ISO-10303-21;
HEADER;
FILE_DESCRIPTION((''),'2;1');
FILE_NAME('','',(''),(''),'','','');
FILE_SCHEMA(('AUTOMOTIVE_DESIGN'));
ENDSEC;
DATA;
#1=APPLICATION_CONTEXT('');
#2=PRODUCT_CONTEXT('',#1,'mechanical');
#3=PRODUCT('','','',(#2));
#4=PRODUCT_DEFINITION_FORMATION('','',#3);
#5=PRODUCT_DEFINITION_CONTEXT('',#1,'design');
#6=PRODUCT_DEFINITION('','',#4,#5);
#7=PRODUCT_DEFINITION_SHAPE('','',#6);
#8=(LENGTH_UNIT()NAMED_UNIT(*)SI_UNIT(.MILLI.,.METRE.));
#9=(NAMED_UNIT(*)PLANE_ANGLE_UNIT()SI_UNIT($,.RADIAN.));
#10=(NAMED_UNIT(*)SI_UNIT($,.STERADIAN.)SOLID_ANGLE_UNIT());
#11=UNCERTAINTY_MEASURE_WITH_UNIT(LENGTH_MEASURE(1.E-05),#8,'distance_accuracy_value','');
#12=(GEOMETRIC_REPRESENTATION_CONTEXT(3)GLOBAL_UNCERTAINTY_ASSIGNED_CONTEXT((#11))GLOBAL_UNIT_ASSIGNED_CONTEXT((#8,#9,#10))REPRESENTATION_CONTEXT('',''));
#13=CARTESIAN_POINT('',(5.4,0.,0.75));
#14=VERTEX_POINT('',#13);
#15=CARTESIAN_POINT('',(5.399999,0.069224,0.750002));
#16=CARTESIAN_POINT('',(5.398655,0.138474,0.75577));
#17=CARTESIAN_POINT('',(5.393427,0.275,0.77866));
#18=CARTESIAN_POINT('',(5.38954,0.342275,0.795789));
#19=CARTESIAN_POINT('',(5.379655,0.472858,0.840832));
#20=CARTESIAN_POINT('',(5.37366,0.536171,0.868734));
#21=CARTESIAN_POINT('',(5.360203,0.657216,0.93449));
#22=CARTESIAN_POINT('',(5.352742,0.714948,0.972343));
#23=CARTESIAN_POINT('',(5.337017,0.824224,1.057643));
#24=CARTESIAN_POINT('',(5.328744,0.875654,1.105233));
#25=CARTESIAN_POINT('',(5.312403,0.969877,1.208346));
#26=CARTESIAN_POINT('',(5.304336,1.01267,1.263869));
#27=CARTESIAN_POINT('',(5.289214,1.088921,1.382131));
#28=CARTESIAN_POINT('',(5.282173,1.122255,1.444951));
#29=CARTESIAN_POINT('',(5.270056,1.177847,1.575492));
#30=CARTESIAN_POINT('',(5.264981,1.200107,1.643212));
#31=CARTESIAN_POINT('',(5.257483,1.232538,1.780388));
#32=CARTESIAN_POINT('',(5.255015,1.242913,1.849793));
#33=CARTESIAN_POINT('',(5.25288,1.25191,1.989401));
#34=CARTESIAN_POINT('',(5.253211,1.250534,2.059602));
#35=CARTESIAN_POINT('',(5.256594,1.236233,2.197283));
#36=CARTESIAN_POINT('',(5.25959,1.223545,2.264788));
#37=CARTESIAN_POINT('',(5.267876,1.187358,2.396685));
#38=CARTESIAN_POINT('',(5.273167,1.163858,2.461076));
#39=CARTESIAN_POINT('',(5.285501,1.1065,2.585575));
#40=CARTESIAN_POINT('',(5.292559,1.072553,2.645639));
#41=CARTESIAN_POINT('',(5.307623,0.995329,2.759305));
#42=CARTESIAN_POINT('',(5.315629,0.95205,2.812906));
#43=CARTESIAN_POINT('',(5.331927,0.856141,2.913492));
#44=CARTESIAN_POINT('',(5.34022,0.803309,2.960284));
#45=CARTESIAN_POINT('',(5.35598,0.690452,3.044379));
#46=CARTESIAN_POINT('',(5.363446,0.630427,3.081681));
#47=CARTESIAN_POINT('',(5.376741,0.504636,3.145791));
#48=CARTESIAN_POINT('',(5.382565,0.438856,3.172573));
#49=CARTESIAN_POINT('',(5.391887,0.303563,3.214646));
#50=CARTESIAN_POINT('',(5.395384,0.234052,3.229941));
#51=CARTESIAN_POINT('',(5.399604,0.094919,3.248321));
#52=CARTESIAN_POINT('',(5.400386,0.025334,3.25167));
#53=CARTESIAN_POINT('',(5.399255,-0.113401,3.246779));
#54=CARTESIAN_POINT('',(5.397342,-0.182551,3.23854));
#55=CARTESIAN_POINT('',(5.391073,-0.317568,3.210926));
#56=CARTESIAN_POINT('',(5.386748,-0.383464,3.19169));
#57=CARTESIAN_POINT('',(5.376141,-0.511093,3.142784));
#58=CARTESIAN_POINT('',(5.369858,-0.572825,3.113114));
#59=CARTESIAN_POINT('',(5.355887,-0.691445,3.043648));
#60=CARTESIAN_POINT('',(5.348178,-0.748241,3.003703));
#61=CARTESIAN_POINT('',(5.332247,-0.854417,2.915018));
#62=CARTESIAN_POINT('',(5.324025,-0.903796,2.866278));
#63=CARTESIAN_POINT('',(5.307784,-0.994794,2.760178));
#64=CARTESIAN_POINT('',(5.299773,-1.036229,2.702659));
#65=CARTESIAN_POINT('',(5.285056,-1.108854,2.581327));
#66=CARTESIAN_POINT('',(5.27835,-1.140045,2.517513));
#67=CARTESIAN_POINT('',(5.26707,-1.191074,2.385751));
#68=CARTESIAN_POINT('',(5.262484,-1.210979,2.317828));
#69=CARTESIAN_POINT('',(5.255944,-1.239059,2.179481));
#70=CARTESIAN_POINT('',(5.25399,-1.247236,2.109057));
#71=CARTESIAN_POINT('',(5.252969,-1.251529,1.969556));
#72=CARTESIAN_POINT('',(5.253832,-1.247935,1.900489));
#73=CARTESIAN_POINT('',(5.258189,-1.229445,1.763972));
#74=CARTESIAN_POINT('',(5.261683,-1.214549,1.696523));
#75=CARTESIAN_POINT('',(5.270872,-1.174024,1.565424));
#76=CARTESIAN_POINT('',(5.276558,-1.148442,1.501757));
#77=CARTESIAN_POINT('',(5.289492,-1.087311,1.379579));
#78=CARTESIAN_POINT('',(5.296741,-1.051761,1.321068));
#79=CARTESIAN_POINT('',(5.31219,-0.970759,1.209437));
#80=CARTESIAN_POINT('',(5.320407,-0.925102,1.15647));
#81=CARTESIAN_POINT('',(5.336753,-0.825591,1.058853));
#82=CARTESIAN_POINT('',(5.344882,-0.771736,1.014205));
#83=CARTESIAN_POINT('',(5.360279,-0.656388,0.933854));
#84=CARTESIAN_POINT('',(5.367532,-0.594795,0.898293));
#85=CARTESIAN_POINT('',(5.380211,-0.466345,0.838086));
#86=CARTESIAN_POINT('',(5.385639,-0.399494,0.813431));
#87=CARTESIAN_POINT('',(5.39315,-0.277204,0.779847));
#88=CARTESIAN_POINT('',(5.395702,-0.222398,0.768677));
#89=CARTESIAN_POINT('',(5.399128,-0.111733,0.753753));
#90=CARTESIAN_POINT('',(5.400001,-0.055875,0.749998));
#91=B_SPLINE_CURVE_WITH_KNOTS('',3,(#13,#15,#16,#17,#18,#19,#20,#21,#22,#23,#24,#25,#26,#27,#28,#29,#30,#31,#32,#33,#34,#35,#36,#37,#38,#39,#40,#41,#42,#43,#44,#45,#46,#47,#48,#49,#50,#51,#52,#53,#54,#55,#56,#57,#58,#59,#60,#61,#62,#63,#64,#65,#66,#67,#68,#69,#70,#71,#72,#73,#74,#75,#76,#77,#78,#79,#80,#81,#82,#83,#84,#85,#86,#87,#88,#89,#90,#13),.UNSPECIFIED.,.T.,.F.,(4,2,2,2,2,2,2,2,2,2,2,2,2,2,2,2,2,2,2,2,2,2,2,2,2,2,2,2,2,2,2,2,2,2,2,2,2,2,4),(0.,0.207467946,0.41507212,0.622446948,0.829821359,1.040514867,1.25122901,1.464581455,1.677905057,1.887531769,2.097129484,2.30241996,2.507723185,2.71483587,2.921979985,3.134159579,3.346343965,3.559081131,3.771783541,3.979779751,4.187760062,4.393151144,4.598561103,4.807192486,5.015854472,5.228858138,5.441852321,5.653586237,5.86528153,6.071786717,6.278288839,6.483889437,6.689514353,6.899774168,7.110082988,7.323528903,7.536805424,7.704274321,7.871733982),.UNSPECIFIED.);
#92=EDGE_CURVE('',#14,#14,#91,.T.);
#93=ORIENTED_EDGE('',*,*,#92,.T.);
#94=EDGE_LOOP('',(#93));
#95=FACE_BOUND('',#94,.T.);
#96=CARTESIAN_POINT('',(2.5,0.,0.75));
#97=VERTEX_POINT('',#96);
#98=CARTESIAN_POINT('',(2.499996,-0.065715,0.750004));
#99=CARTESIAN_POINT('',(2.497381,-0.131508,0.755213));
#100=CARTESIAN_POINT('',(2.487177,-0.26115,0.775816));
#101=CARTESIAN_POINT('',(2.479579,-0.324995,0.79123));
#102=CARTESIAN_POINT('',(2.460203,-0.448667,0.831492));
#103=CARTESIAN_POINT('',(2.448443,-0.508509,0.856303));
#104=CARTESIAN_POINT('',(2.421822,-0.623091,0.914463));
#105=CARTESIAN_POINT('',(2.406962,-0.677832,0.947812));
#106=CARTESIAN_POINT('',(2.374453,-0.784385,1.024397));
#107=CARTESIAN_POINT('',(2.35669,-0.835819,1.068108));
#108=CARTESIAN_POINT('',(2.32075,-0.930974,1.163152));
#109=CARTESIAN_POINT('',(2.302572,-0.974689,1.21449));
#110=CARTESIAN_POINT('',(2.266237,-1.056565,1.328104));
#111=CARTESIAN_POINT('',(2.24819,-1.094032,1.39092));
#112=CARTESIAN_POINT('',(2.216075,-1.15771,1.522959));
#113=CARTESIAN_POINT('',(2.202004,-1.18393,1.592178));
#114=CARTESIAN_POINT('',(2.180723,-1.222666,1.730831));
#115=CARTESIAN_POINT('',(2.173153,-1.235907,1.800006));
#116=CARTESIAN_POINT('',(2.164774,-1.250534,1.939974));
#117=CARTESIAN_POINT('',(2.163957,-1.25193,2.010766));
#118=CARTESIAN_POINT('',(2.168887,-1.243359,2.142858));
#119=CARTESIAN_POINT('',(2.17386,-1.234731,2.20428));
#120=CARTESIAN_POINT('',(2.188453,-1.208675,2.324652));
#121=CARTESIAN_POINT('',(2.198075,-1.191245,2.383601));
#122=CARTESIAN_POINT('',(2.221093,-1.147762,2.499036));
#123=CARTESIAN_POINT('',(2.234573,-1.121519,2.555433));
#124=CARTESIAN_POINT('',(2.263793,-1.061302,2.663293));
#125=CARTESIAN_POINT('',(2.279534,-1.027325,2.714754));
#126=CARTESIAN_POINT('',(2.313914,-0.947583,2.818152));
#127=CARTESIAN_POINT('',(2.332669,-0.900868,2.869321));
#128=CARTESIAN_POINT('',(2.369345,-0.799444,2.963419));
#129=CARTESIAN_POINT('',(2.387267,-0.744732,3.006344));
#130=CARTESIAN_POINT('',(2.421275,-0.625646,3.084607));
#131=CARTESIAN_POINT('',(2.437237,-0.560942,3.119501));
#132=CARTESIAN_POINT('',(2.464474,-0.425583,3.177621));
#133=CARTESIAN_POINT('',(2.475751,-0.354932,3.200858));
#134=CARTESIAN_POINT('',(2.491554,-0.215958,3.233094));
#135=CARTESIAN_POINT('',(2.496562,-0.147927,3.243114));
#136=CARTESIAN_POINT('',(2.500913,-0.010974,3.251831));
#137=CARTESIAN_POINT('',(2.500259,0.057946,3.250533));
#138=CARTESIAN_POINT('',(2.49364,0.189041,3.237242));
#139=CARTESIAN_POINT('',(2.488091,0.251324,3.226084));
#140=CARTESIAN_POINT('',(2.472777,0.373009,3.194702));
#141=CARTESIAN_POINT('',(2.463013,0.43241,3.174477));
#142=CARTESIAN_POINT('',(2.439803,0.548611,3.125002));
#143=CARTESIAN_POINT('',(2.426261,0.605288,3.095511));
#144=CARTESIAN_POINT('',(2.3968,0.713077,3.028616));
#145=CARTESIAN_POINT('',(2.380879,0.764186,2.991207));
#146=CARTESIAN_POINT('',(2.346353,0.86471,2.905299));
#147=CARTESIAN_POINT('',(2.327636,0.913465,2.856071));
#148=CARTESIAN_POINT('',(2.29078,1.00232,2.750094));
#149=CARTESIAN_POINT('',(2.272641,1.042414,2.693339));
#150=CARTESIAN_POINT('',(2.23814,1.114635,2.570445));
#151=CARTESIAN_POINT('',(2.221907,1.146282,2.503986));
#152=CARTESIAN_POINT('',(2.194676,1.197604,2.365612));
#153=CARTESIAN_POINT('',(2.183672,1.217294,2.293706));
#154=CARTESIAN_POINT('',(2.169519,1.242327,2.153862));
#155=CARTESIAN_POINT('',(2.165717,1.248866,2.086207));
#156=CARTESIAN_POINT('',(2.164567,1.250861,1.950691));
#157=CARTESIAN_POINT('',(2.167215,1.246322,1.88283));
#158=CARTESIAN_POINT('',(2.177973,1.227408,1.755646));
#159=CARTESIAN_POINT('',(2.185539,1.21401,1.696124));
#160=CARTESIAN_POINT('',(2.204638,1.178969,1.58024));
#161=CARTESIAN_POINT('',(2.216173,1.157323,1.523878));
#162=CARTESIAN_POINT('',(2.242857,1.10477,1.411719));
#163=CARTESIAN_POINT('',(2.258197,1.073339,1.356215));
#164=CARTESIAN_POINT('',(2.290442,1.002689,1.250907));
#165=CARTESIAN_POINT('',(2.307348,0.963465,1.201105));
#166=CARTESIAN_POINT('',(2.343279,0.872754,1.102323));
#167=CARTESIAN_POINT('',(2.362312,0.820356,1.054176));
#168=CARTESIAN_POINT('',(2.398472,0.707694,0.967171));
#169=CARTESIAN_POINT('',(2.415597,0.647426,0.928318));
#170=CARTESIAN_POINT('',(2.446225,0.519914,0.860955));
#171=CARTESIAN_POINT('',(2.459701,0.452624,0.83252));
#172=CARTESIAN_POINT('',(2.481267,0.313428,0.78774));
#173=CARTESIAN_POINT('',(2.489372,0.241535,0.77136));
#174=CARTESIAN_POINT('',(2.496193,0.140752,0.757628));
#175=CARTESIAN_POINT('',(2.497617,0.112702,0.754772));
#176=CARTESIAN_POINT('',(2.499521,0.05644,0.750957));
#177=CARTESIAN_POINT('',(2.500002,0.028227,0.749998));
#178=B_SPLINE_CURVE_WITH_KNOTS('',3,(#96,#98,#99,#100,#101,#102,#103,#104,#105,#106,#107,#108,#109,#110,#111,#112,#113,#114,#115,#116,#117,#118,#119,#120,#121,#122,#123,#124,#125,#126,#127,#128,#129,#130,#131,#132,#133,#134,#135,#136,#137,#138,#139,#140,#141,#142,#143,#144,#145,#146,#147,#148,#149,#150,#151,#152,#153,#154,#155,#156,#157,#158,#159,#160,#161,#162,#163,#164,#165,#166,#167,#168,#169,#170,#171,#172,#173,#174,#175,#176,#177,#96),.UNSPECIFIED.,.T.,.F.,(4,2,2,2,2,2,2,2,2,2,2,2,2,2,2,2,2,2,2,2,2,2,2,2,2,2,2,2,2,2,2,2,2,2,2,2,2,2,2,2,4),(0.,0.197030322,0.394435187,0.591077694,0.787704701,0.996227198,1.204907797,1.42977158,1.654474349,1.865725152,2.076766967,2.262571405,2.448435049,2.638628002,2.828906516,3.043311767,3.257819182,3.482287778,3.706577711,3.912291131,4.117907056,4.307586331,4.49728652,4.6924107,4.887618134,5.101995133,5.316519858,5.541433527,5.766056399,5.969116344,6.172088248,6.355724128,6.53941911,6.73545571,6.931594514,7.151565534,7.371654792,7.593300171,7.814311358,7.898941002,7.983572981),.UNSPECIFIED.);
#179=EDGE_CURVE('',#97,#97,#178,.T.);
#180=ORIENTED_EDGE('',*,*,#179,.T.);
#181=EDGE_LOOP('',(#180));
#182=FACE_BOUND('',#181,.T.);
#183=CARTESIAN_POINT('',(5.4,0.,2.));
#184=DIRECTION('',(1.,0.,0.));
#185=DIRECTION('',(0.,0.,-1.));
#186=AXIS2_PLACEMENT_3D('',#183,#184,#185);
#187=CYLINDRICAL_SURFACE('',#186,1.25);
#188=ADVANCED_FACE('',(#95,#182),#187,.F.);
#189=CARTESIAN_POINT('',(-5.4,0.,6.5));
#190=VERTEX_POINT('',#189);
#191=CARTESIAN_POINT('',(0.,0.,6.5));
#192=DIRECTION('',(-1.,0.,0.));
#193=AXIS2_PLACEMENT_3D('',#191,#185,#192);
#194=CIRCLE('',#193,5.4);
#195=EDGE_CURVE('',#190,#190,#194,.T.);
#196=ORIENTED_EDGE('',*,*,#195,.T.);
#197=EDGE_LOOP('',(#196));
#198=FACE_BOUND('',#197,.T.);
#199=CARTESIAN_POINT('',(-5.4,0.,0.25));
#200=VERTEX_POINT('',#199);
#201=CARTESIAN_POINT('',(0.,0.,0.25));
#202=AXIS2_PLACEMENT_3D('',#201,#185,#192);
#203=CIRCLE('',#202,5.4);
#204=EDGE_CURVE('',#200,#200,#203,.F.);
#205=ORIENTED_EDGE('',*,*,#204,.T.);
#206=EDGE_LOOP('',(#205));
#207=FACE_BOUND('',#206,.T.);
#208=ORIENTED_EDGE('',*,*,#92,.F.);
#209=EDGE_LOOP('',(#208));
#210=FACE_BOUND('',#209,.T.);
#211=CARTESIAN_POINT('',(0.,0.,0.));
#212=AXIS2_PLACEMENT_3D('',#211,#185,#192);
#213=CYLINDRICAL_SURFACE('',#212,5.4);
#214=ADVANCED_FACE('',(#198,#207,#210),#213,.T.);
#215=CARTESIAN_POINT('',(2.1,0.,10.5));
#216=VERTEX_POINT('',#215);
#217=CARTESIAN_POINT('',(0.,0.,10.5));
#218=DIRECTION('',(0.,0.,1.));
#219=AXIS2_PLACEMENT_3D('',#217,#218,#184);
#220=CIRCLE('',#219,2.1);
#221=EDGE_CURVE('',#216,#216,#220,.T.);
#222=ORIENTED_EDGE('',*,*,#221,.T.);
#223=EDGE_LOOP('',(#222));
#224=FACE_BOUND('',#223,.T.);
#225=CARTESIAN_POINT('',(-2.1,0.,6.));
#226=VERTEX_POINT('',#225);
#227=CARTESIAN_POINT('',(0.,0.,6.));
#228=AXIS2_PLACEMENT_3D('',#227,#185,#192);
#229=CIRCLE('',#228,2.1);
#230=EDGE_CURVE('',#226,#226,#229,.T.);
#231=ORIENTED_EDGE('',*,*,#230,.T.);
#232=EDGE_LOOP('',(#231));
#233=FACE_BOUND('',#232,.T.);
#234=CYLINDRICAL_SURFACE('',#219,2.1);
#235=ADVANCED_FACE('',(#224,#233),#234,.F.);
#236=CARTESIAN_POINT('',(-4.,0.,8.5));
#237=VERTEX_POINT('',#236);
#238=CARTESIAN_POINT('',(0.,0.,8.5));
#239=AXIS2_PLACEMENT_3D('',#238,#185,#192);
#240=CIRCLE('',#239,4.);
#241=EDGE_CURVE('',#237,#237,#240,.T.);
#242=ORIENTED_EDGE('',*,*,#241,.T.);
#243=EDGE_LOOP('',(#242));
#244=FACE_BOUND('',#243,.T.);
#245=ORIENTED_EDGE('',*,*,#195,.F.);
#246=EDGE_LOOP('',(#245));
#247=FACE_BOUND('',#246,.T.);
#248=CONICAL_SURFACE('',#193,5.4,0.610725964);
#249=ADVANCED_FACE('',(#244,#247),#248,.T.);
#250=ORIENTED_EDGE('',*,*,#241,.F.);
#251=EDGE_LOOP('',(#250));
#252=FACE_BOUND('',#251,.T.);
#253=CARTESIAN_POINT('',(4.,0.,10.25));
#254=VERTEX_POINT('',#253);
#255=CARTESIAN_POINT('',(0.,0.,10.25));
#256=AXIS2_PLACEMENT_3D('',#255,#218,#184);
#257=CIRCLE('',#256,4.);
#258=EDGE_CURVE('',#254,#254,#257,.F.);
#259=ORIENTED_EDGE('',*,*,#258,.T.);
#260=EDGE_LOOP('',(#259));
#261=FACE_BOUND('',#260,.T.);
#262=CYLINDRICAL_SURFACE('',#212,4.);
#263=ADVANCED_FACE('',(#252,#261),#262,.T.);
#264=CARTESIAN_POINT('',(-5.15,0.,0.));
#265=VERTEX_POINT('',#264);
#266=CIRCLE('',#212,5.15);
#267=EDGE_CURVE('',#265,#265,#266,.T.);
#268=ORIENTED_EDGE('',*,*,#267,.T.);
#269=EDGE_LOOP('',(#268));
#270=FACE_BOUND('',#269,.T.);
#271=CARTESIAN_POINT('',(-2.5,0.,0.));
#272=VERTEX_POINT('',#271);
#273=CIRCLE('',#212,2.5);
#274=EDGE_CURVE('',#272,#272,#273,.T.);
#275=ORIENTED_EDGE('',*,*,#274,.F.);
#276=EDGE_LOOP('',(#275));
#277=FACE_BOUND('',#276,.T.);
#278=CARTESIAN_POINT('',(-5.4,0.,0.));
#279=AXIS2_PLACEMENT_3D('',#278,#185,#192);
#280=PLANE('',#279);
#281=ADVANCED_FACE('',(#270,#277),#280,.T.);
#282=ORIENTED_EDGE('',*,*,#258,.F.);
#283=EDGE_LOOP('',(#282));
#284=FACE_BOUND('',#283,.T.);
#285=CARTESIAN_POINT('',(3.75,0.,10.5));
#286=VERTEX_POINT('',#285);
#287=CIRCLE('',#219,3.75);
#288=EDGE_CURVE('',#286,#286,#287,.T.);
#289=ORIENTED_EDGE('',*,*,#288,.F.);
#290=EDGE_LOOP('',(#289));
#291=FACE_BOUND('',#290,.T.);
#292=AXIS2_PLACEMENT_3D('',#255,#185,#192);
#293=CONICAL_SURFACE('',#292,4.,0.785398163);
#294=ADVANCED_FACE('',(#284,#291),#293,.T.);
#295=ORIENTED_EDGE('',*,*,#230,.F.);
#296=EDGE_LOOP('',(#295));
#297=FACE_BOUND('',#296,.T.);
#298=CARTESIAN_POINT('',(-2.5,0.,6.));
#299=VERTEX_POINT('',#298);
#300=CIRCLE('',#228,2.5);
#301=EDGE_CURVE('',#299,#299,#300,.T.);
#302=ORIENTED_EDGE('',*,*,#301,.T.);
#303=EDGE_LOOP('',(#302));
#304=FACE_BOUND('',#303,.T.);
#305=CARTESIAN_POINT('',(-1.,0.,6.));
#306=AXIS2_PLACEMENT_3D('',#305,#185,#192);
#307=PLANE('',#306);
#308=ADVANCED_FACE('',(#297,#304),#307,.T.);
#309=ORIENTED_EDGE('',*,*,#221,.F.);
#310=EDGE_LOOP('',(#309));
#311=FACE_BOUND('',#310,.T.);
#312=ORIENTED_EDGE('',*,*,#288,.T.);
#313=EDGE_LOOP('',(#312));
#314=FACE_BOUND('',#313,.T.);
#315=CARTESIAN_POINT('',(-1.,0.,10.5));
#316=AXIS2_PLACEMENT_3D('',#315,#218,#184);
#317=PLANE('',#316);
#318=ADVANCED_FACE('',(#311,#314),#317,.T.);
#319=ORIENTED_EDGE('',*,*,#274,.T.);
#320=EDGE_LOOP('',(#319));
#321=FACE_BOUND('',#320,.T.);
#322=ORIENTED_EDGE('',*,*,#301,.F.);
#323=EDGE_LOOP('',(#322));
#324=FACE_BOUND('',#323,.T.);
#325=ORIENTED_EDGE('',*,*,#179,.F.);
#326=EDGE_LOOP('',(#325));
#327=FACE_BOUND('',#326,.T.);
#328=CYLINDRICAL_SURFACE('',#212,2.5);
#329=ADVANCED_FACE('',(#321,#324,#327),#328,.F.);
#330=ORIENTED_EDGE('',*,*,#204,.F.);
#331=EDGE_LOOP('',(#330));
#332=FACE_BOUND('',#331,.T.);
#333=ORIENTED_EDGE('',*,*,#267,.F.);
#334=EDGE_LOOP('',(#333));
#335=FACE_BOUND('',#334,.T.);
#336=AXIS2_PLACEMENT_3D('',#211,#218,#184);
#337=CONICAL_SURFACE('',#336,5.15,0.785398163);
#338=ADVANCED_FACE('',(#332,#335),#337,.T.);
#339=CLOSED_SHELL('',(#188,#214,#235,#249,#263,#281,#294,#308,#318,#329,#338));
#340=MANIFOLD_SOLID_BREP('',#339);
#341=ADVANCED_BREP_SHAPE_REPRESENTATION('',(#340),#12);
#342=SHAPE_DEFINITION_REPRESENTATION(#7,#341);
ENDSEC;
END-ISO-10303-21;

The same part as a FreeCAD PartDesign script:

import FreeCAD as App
import Part
import Sketcher
from FreeCAD import Vector


def edges_at(feature, points):
    """Names of the edges that pass closest to the given points."""
    edges = feature.Shape.Edges
    near = lambda p: min(range(len(edges)), key=lambda i: edges[i].distToShape(Part.Vertex(*p))[0])
    return sorted({f"Edge{near(p) + 1}" for p in points})

doc = App.newDocument("Part")
body = doc.addObject("PartDesign::Body", "Body")

sketch1 = body.newObject("Sketcher::SketchObject", "Sketch")
sketch1.AttachmentSupport = (doc.getObject("XZ_Plane"), [""])
sketch1.MapMode = "FlatFace"
sketch1.addGeometry([
    Part.LineSegment(Vector(-4, 10.5, 0), Vector(-1, 10.5, 0)),
    Part.LineSegment(Vector(-1, 10.5, 0), Vector(-1, 6, 0)),
    Part.LineSegment(Vector(-1, 6, 0), Vector(-2.5, 6, 0)),
    Part.LineSegment(Vector(-2.5, 6, 0), Vector(-2.5, 0, 0)),
    Part.LineSegment(Vector(-2.5, 0, 0), Vector(-5.4, 0, 0)),
    Part.LineSegment(Vector(-5.4, 0, 0), Vector(-5.4, 6.5, 0)),
    Part.LineSegment(Vector(-5.4, 6.5, 0), Vector(-4, 8.5, 0)),
    Part.LineSegment(Vector(-4, 8.5, 0), Vector(-4, 10.5, 0)),
], False)
sketch1.addConstraint([
    Sketcher.Constraint("Coincident", 0, 2, 1, 1),
    Sketcher.Constraint("Coincident", 1, 2, 2, 1),
    Sketcher.Constraint("Coincident", 2, 2, 3, 1),
    Sketcher.Constraint("Coincident", 3, 2, 4, 1),
    Sketcher.Constraint("Coincident", 4, 2, 5, 1),
    Sketcher.Constraint("Coincident", 5, 2, 6, 1),
    Sketcher.Constraint("Coincident", 6, 2, 7, 1),
    Sketcher.Constraint("Coincident", 7, 2, 0, 1),
    Sketcher.Constraint("Horizontal", 0),
    Sketcher.Constraint("Vertical", 1),
    Sketcher.Constraint("Horizontal", 2),
    Sketcher.Constraint("Vertical", 3),
    Sketcher.Constraint("Horizontal", 4),
    Sketcher.Constraint("Vertical", 5),
    Sketcher.Constraint("Vertical", 7),
    Sketcher.Constraint("PointOnObject", 3, 2, -1),
    Sketcher.Constraint("DistanceX", 0, 1, 0, 2, 3.0),
    Sketcher.Constraint("DistanceY", 3, 2, 3, 1, 6.0),
    Sketcher.Constraint("DistanceY", 7, 1, 7, 2, 2.0),
    Sketcher.Constraint("DistanceX", 2, 2, 2, 1, 1.5),
    Sketcher.Constraint("DistanceX", 4, 2, 4, 1, 2.9),
    Sketcher.Constraint("DistanceY", 1, 2, 1, 1, 4.5),
    Sketcher.Constraint("DistanceY", 5, 1, 5, 2, 6.5),
    Sketcher.Constraint("DistanceX", 0, 2, -1, 1, 1.0),
])
revolution = body.newObject("PartDesign::Revolution", "Revolution")
revolution.Profile = sketch1
revolution.ReferenceAxis = (sketch1, ["V_Axis"])
revolution.Angle = 360

sketch2 = body.newObject("Sketcher::SketchObject", "Sketch001")
sketch2.AttachmentSupport = (doc.getObject("XY_Plane"), [""])
sketch2.MapMode = "FlatFace"
sketch2.AttachmentOffset = App.Placement(Vector(0, 0, 10.5), App.Rotation())
sketch2.addGeometry(Part.Circle(Vector(0, 0, 0), Vector(0, 0, 1), 2.1), False)
sketch2.addConstraint([
    Sketcher.Constraint("Coincident", 0, 3, -1, 1),
    Sketcher.Constraint("Diameter", 0, 4.2),
])
doc.recompute()
hole = body.newObject("PartDesign::Hole", "Hole")
hole.Profile = sketch2
hole.ThreadType = "None"
hole.Diameter = 4.2
hole.DepthType = "Dimension"
hole.Depth = 7.4
hole.DrillPoint = "Angled"
hole.DrillPointAngle = 118

sketch3 = body.newObject("Sketcher::SketchObject", "Sketch002")
sketch3.AttachmentSupport = (doc.getObject("YZ_Plane"), [""])
sketch3.MapMode = "FlatFace"
sketch3.AttachmentOffset = App.Placement(Vector(0, 0, 5.4), App.Rotation())
sketch3.addGeometry(Part.Circle(Vector(0, 2, 0), Vector(0, 0, 1), 1.2), False)
sketch3.addConstraint([
    Sketcher.Constraint("PointOnObject", 0, 3, -2),
    Sketcher.Constraint("Diameter", 0, 2.5),
    Sketcher.Constraint("DistanceY", -1, 1, 0, 3, 2.0),
])
pocket1 = body.newObject("PartDesign::Pocket", "Pocket")
pocket1.Profile = sketch3
pocket1.Type = "UpToFirst"
doc.recompute()

chamfer = body.newObject("PartDesign::Chamfer", "Chamfer")
chamfer.Base = (pocket1, edges_at(pocket1, [(5.4, 0, 0), (4, 0, 10.5)]))
chamfer.Size = 0.25

doc.recompute()
